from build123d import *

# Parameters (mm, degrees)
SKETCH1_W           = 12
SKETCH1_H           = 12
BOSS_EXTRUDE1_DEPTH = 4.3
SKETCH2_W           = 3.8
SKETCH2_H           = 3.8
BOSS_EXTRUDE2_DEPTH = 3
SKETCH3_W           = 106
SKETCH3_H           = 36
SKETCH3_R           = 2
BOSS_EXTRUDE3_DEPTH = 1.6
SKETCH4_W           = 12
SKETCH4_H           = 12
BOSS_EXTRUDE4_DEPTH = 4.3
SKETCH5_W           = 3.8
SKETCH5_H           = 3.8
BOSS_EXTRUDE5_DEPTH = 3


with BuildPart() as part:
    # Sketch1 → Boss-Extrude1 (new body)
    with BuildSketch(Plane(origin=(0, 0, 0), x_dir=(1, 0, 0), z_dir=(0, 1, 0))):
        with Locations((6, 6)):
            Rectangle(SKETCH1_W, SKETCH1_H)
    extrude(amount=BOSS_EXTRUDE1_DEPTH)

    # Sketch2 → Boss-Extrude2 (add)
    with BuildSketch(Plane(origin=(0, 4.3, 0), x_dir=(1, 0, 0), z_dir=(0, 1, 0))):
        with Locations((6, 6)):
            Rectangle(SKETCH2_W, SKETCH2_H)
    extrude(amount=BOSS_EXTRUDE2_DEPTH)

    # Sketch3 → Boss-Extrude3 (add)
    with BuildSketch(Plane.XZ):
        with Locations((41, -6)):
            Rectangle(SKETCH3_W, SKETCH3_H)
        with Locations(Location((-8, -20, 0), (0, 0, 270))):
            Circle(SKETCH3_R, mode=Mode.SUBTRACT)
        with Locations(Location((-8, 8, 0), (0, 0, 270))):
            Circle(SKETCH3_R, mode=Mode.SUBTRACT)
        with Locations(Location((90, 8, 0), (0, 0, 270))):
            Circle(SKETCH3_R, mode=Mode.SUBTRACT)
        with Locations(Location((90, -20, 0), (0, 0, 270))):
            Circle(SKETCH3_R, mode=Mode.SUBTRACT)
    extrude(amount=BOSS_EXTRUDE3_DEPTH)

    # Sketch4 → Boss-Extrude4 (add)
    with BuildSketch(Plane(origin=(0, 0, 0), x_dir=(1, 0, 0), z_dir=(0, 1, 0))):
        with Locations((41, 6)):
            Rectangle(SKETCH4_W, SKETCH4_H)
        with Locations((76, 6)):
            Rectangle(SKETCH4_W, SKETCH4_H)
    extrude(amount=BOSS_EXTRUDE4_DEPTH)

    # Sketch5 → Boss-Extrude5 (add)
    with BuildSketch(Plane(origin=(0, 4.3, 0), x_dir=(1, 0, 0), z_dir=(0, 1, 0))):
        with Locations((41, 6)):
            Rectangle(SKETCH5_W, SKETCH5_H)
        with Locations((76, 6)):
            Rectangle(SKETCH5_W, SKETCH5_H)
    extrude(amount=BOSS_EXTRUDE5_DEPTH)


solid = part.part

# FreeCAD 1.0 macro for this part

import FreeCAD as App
import Part
import Sketcher

V = App.Vector
Q = App.Units.Quantity


def add_polygon(sketch, points):
    """Adds a closed chain of lines whose ends are joined by coincident constraints."""
    first, n = sketch.GeometryCount, len(points)
    for a, b in zip(points, points[1:] + points[:1]):
        sketch.addGeometry(Part.LineSegment(App.Vector(*a, 0), App.Vector(*b, 0)), False)
    for i in range(n):
        sketch.addConstraint(Sketcher.Constraint("Coincident", first + i, 2, first + (i + 1) % n, 1))

doc = App.newDocument("Part")
body = doc.addObject("PartDesign::Body", "Body")

sketch1 = body.newObject("Sketcher::SketchObject", "Sketch")
sketch1.AttachmentSupport = (doc.getObject("XZ_Plane"), [""])
sketch1.MapMode = "FlatFace"
add_polygon(sketch1, [(0, -12), (0, 0), (12, 0), (12, -12)])
sketch1.addConstraint(Sketcher.Constraint("Vertical", 0))
sketch1.addConstraint(Sketcher.Constraint("Horizontal", 1))
sketch1.addConstraint(Sketcher.Constraint("Vertical", 2))
sketch1.addConstraint(Sketcher.Constraint("Horizontal", 3))
sketch1.addConstraint(Sketcher.Constraint("Coincident", 0, 2, -1, 1))
sketch1.addConstraint(Sketcher.Constraint("Equal", 3, 0))
sketch1.addConstraint(Sketcher.Constraint("DistanceX", 1, 1, 1, 2, Q("12 mm")))
pad1 = body.newObject("PartDesign::Pad", "Pad")
pad1.Profile = sketch1
pad1.Length = 4.3
pad1.Reversed = True

sketch2 = body.newObject("Sketcher::SketchObject", "Sketch001")
sketch2.AttachmentSupport = (doc.getObject("XZ_Plane"), [""])
sketch2.MapMode = "FlatFace"
sketch2.AttachmentOffset = App.Placement(V(0, 0, -4.3), App.Rotation())
add_polygon(sketch2, [(4.1, -7.9), (4.1, -4.1), (7.9, -4.1), (7.9, -7.9)])
sketch2.addConstraint(Sketcher.Constraint("Vertical", 0))
sketch2.addConstraint(Sketcher.Constraint("Horizontal", 1))
sketch2.addConstraint(Sketcher.Constraint("Vertical", 2))
sketch2.addConstraint(Sketcher.Constraint("Horizontal", 3))
sketch2.addConstraint(Sketcher.Constraint("Equal", 3, 0))
sketch2.addConstraint(Sketcher.Constraint("DistanceX", 1, 1, 1, 2, Q("3.8 mm")))
sketch2.addConstraint(Sketcher.Constraint("DistanceX", -1, 1, 0, 2, Q("4.1 mm")))
sketch2.addConstraint(Sketcher.Constraint("DistanceY", 0, 2, -1, 1, Q("4.1 mm")))
pad2 = body.newObject("PartDesign::Pad", "Pad001")
pad2.Profile = sketch2
pad2.Length = 3
pad2.Reversed = True

sketch3 = body.newObject("Sketcher::SketchObject", "Sketch002")
sketch3.AttachmentSupport = (doc.getObject("XZ_Plane"), [""])
sketch3.MapMode = "FlatFace"
add_polygon(sketch3, [(-12, 12), (-12, -24), (94, -24), (94, 12)])
sketch3.addGeometry(Part.Circle(V(-8, -20, 0), V(0, 0, 1), 2), False)
sketch3.addGeometry(Part.Circle(V(90, -20, 0), V(0, 0, 1), 2), False)
sketch3.addGeometry(Part.Circle(V(-8, 8, 0), V(0, 0, 1), 2), False)
sketch3.addGeometry(Part.Circle(V(90, 8, 0), V(0, 0, 1), 2), False)
sketch3.addConstraint(Sketcher.Constraint("Vertical", 0))
sketch3.addConstraint(Sketcher.Constraint("Horizontal", 1))
sketch3.addConstraint(Sketcher.Constraint("Vertical", 2))
sketch3.addConstraint(Sketcher.Constraint("Horizontal", 3))
sketch3.addConstraint(Sketcher.Constraint("Equal", 4, 5))
sketch3.addConstraint(Sketcher.Constraint("Equal", 5, 6))
sketch3.addConstraint(Sketcher.Constraint("Equal", 6, 7))
sketch3.addConstraint(Sketcher.Constraint("Horizontal", 4, 3, 5, 3))
sketch3.addConstraint(Sketcher.Constraint("Horizontal", 6, 3, 7, 3))
sketch3.addConstraint(Sketcher.Constraint("Vertical", 4, 3, 6, 3))
sketch3.addConstraint(Sketcher.Constraint("Vertical", 5, 3, 7, 3))
sketch3.addConstraint(Sketcher.Constraint("Diameter", 4, Q("4 mm")))
sketch3.addConstraint(Sketcher.Constraint("DistanceX", 1, 1, 1, 2, Q("106 mm")))
sketch3.addConstraint(Sketcher.Constraint("DistanceY", 0, 2, 0, 1, Q("36 mm")))
sketch3.addConstraint(Sketcher.Constraint("DistanceX", 4, 3, -1, 1, Q("8 mm")))
sketch3.addConstraint(Sketcher.Constraint("DistanceY", 4, 3, -1, 1, Q("20 mm")))
sketch3.addConstraint(Sketcher.Constraint("DistanceX", -1, 1, 5, 3, Q("90 mm")))
sketch3.addConstraint(Sketcher.Constraint("DistanceY", -1, 1, 6, 3, Q("8 mm")))
sketch3.addConstraint(Sketcher.Constraint("DistanceX", 0, 2, -1, 1, Q("12 mm")))
sketch3.addConstraint(Sketcher.Constraint("DistanceY", 0, 2, -1, 1, Q("24 mm")))
pad3 = body.newObject("PartDesign::Pad", "Pad002")
pad3.Profile = sketch3
pad3.Length = 1.6

sketch4 = body.newObject("Sketcher::SketchObject", "Sketch003")
sketch4.AttachmentSupport = (doc.getObject("XZ_Plane"), [""])
sketch4.MapMode = "FlatFace"
add_polygon(sketch4, [(35, -12), (35, 0), (47, 0), (47, -12)])
add_polygon(sketch4, [(70, -12), (70, 0), (82, 0), (82, -12)])
sketch4.addConstraint(Sketcher.Constraint("Vertical", 0))
sketch4.addConstraint(Sketcher.Constraint("Horizontal", 1))
sketch4.addConstraint(Sketcher.Constraint("Vertical", 2))
sketch4.addConstraint(Sketcher.Constraint("Horizontal", 3))
sketch4.addConstraint(Sketcher.Constraint("Vertical", 4))
sketch4.addConstraint(Sketcher.Constraint("Horizontal", 5))
sketch4.addConstraint(Sketcher.Constraint("Vertical", 6))
sketch4.addConstraint(Sketcher.Constraint("Horizontal", 7))
sketch4.addConstraint(Sketcher.Constraint("PointOnObject", 0, 2, -1))
sketch4.addConstraint(Sketcher.Constraint("PointOnObject", 4, 2, -1))
sketch4.addConstraint(Sketcher.Constraint("Horizontal", 3, 2, 6, 2))
sketch4.addConstraint(Sketcher.Constraint("Equal", 3, 5))
sketch4.addConstraint(Sketcher.Constraint("Equal", 7, 0))
sketch4.addConstraint(Sketcher.Constraint("DistanceX", 1, 1, 1, 2, Q("12 mm")))
sketch4.addConstraint(Sketcher.Constraint("DistanceX", -1, 1, 0, 2, Q("35 mm")))
sketch4.addConstraint(Sketcher.Constraint("DistanceX", -1, 1, 4, 2, Q("70 mm")))
pad4 = body.newObject("PartDesign::Pad", "Pad003")
pad4.Profile = sketch4
pad4.Length = 4.3
pad4.Reversed = True

sketch5 = body.newObject("Sketcher::SketchObject", "Sketch004")
sketch5.AttachmentSupport = (doc.getObject("XZ_Plane"), [""])
sketch5.MapMode = "FlatFace"
sketch5.AttachmentOffset = App.Placement(V(0, 0, -4.3), App.Rotation())
add_polygon(sketch5, [(39.1, -7.9), (39.1, -4.1), (42.9, -4.1), (42.9, -7.9)])
add_polygon(sketch5, [(74.1, -7.9), (74.1, -4.1), (77.9, -4.1), (77.9, -7.9)])
sketch5.addConstraint(Sketcher.Constraint("Vertical", 0))
sketch5.addConstraint(Sketcher.Constraint("Horizontal", 1))
sketch5.addConstraint(Sketcher.Constraint("Vertical", 2))
sketch5.addConstraint(Sketcher.Constraint("Horizontal", 3))
sketch5.addConstraint(Sketcher.Constraint("Vertical", 4))
sketch5.addConstraint(Sketcher.Constraint("Horizontal", 5))
sketch5.addConstraint(Sketcher.Constraint("Vertical", 6))
sketch5.addConstraint(Sketcher.Constraint("Horizontal", 7))
sketch5.addConstraint(Sketcher.Constraint("Horizontal", 1, 2, 4, 2))
sketch5.addConstraint(Sketcher.Constraint("Horizontal", 3, 2, 6, 2))
sketch5.addConstraint(Sketcher.Constraint("Equal", 3, 5))
sketch5.addConstraint(Sketcher.Constraint("Equal", 7, 0))
sketch5.addConstraint(Sketcher.Constraint("DistanceX", 1, 1, 1, 2, Q("3.8 mm")))
sketch5.addConstraint(Sketcher.Constraint("DistanceX", 0, 2, 4, 2, Q("35 mm")))
sketch5.addConstraint(Sketcher.Constraint("DistanceX", -1, 1, 0, 2, Q("39.1 mm")))
sketch5.addConstraint(Sketcher.Constraint("DistanceY", 0, 2, -1, 1, Q("4.1 mm")))
pad5 = body.newObject("PartDesign::Pad", "Pad004")
pad5.Profile = sketch5
pad5.Length = 3
pad5.Reversed = True

doc.recompute()
